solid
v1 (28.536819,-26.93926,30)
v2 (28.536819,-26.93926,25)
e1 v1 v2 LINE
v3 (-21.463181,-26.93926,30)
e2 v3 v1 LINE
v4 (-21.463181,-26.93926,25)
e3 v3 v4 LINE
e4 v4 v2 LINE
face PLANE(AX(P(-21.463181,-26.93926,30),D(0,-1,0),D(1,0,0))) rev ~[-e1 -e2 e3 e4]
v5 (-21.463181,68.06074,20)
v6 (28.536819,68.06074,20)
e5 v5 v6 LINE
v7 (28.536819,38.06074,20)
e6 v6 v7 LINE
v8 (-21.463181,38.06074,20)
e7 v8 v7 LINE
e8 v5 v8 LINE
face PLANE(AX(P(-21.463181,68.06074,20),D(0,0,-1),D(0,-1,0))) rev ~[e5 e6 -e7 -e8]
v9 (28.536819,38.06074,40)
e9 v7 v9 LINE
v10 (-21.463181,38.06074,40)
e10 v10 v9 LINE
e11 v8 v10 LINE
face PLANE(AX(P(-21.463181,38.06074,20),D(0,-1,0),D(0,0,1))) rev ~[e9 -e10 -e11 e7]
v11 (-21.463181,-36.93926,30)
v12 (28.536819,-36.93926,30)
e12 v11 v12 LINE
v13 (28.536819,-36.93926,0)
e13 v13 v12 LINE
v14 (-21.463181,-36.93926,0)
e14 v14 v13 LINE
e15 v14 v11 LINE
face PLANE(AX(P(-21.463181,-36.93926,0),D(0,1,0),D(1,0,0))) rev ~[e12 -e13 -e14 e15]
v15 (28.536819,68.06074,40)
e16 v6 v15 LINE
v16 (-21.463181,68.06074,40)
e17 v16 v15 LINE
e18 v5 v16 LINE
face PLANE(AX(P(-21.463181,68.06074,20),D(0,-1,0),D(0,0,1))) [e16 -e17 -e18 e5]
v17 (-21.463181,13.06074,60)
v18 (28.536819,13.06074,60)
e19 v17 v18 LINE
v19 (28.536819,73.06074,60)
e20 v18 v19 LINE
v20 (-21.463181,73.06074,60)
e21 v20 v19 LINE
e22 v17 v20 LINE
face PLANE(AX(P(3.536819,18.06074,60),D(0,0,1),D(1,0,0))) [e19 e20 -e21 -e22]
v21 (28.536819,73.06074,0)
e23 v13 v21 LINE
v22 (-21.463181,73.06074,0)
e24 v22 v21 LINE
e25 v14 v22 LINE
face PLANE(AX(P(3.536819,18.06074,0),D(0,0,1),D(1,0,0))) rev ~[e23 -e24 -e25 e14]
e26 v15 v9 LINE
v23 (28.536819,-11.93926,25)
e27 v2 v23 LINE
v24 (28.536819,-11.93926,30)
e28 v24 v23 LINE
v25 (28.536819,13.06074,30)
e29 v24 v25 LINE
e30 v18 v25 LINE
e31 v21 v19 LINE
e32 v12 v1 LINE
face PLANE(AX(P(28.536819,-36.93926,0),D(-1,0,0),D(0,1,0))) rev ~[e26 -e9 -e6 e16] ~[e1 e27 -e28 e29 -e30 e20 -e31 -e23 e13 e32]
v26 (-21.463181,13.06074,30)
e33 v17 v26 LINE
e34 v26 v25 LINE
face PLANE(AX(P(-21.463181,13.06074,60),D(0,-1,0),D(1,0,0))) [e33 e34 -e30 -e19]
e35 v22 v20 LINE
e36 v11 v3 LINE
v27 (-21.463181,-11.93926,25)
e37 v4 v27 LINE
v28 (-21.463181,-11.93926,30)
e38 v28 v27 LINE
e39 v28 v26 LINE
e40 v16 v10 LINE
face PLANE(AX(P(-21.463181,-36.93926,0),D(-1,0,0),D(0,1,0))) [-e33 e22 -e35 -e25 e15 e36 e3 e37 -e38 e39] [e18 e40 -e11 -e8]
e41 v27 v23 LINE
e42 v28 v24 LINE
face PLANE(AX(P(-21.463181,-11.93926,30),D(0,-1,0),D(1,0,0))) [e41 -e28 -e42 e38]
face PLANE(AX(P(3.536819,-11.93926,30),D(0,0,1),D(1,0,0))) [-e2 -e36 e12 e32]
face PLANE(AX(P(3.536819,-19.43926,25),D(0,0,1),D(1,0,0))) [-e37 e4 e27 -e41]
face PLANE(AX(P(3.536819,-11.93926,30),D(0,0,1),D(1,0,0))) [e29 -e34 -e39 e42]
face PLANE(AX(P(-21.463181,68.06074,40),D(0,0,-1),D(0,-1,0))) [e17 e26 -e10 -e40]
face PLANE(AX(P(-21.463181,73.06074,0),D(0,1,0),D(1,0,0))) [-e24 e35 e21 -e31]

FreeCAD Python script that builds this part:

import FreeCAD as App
import Part
import Sketcher

V = App.Vector


def add_polygon(sketch, points):
    """Adds a closed chain of lines whose ends are joined by coincident constraints."""
    first, n = sketch.GeometryCount, len(points)
    for a, b in zip(points, points[1:] + points[:1]):
        sketch.addGeometry(Part.LineSegment(App.Vector(*a, 0), App.Vector(*b, 0)), False)
    for i in range(n):
        sketch.addConstraint(Sketcher.Constraint("Coincident", first + i, 2, first + (i + 1) % n, 1))

doc = App.newDocument("Part")
params = doc.addObject("Spreadsheet::Sheet", "Params")
for row, (alias, value) in enumerate([
    ("sketch1_width", "50 mm"),
    ("sketch1_height", "110 mm"),
    ("pad1_length", "60 mm"),
    ("sketch2_width", "50 mm"),
    ("pocket1_length", "30 mm"),
    ("sketch3_width", "50 mm"),
    ("sketch3_height", "15 mm"),
    ("pocket2_length", "5 mm"),
    ("sketch4_width", "30 mm"),
    ("sketch4_height", "20 mm"),
    ("pocket3_length", "92 mm"),
], start=1):
    params.set(f"A{row}", alias)
    params.set(f"B{row}", "=" + value)
    params.setAlias(f"B{row}", alias)

body = doc.addObject("PartDesign::Body", "Body")

# Sketch on XY plane
sketch1 = body.newObject("Sketcher::SketchObject", "Sketch")
sketch1.AttachmentSupport = (doc.getObject("XY_Plane"), [""])
sketch1.MapMode = "FlatFace"
add_polygon(sketch1, [(-21, 73), (-21, -37), (29, -37), (29, 73)])  # lines 0-3
sketch1.addConstraint([
    Sketcher.Constraint("Vertical", 0),
    Sketcher.Constraint("Horizontal", 1),
    Sketcher.Constraint("Vertical", 2),
    Sketcher.Constraint("Horizontal", 3),
    Sketcher.Constraint("DistanceX", 1, 1, 1, 2, 50.0),
    Sketcher.Constraint("DistanceY", 0, 2, 0, 1, 110.0),
    Sketcher.Constraint("DistanceX", 0, 2, -1, 1, 21.463181),
    Sketcher.Constraint("DistanceY", 0, 2, -1, 1, 36.93926),
])
sketch1.setExpression("Constraints[8]", "Params.sketch1_width")
sketch1.setExpression("Constraints[9]", "Params.sketch1_height")
pad1 = body.newObject("PartDesign::Pad", "Pad")
pad1.Profile = sketch1
pad1.setExpression("Length", "Params.pad1_length")

# Sketch on XY plane
sketch2 = body.newObject("Sketcher::SketchObject", "Sketch001")
sketch2.AttachmentSupport = (doc.getObject("XY_Plane"), [""])
sketch2.MapMode = "FlatFace"
sketch2.AttachmentOffset = App.Placement(V(0, 0, 60), App.Rotation())
add_polygon(sketch2, [(-21, 13), (-21, -37), (29, -37), (29, 13)])  # lines 0-3
sketch2.addConstraint([
    Sketcher.Constraint("Vertical", 0),
    Sketcher.Constraint("Horizontal", 1),
    Sketcher.Constraint("Vertical", 2),
    Sketcher.Constraint("Horizontal", 3),
    Sketcher.Constraint("Equal", 3, 0),
    Sketcher.Constraint("DistanceX", 1, 1, 1, 2, 50.0),
    Sketcher.Constraint("DistanceX", 0, 2, -1, 1, 21.463181),
    Sketcher.Constraint("DistanceY", 0, 2, -1, 1, 36.93926),
])
sketch2.setExpression("Constraints[9]", "Params.sketch2_width")
pocket1 = body.newObject("PartDesign::Pocket", "Pocket")
pocket1.Profile = sketch2
pocket1.setExpression("Length", "Params.pocket1_length")

# Sketch on XY plane
sketch3 = body.newObject("Sketcher::SketchObject", "Sketch002")
sketch3.AttachmentSupport = (doc.getObject("XY_Plane"), [""])
sketch3.MapMode = "FlatFace"
sketch3.AttachmentOffset = App.Placement(V(0, 0, 30), App.Rotation())
add_polygon(sketch3, [(-21, -12), (-21, -27), (29, -27), (29, -12)])  # lines 0-3
sketch3.addConstraint([
    Sketcher.Constraint("Vertical", 0),
    Sketcher.Constraint("Horizontal", 1),
    Sketcher.Constraint("Vertical", 2),
    Sketcher.Constraint("Horizontal", 3),
    Sketcher.Constraint("DistanceX", 1, 1, 1, 2, 50.0),
    Sketcher.Constraint("DistanceY", 0, 2, 0, 1, 15.0),
    Sketcher.Constraint("DistanceX", 0, 2, -1, 1, 21.463181),
    Sketcher.Constraint("DistanceY", 0, 2, -1, 1, 26.93926),
])
sketch3.setExpression("Constraints[8]", "Params.sketch3_width")
sketch3.setExpression("Constraints[9]", "Params.sketch3_height")
pocket2 = body.newObject("PartDesign::Pocket", "Pocket001")
pocket2.Profile = sketch3
pocket2.setExpression("Length", "Params.pocket2_length")

# Sketch on YZ plane
sketch4 = body.newObject("Sketcher::SketchObject", "Sketch003")
sketch4.AttachmentSupport = (doc.getObject("YZ_Plane"), [""])
sketch4.MapMode = "FlatFace"
sketch4.AttachmentOffset = App.Placement(V(0, 0, -21.463181), App.Rotation())
add_polygon(sketch4, [(68, 40), (68, 20), (38, 20), (38, 40)])  # lines 0-3
sketch4.addConstraint([
    Sketcher.Constraint("Vertical", 0),
    Sketcher.Constraint("Horizontal", 1),
    Sketcher.Constraint("Vertical", 2),
    Sketcher.Constraint("Horizontal", 3),
    Sketcher.Constraint("DistanceX", 1, 2, 1, 1, 30.0),
    Sketcher.Constraint("DistanceY", 0, 2, 0, 1, 20.0),
    Sketcher.Constraint("DistanceY", -1, 1, 0, 2, 20.0),
    Sketcher.Constraint("DistanceX", -1, 1, 0, 2, 68.06074),
])
sketch4.setExpression("Constraints[8]", "Params.sketch4_width")
sketch4.setExpression("Constraints[9]", "Params.sketch4_height")
pocket3 = body.newObject("PartDesign::Pocket", "Pocket002")
pocket3.Profile = sketch4
pocket3.setExpression("Length", "Params.pocket3_length")
pocket3.Reversed = True

doc.recompute()
